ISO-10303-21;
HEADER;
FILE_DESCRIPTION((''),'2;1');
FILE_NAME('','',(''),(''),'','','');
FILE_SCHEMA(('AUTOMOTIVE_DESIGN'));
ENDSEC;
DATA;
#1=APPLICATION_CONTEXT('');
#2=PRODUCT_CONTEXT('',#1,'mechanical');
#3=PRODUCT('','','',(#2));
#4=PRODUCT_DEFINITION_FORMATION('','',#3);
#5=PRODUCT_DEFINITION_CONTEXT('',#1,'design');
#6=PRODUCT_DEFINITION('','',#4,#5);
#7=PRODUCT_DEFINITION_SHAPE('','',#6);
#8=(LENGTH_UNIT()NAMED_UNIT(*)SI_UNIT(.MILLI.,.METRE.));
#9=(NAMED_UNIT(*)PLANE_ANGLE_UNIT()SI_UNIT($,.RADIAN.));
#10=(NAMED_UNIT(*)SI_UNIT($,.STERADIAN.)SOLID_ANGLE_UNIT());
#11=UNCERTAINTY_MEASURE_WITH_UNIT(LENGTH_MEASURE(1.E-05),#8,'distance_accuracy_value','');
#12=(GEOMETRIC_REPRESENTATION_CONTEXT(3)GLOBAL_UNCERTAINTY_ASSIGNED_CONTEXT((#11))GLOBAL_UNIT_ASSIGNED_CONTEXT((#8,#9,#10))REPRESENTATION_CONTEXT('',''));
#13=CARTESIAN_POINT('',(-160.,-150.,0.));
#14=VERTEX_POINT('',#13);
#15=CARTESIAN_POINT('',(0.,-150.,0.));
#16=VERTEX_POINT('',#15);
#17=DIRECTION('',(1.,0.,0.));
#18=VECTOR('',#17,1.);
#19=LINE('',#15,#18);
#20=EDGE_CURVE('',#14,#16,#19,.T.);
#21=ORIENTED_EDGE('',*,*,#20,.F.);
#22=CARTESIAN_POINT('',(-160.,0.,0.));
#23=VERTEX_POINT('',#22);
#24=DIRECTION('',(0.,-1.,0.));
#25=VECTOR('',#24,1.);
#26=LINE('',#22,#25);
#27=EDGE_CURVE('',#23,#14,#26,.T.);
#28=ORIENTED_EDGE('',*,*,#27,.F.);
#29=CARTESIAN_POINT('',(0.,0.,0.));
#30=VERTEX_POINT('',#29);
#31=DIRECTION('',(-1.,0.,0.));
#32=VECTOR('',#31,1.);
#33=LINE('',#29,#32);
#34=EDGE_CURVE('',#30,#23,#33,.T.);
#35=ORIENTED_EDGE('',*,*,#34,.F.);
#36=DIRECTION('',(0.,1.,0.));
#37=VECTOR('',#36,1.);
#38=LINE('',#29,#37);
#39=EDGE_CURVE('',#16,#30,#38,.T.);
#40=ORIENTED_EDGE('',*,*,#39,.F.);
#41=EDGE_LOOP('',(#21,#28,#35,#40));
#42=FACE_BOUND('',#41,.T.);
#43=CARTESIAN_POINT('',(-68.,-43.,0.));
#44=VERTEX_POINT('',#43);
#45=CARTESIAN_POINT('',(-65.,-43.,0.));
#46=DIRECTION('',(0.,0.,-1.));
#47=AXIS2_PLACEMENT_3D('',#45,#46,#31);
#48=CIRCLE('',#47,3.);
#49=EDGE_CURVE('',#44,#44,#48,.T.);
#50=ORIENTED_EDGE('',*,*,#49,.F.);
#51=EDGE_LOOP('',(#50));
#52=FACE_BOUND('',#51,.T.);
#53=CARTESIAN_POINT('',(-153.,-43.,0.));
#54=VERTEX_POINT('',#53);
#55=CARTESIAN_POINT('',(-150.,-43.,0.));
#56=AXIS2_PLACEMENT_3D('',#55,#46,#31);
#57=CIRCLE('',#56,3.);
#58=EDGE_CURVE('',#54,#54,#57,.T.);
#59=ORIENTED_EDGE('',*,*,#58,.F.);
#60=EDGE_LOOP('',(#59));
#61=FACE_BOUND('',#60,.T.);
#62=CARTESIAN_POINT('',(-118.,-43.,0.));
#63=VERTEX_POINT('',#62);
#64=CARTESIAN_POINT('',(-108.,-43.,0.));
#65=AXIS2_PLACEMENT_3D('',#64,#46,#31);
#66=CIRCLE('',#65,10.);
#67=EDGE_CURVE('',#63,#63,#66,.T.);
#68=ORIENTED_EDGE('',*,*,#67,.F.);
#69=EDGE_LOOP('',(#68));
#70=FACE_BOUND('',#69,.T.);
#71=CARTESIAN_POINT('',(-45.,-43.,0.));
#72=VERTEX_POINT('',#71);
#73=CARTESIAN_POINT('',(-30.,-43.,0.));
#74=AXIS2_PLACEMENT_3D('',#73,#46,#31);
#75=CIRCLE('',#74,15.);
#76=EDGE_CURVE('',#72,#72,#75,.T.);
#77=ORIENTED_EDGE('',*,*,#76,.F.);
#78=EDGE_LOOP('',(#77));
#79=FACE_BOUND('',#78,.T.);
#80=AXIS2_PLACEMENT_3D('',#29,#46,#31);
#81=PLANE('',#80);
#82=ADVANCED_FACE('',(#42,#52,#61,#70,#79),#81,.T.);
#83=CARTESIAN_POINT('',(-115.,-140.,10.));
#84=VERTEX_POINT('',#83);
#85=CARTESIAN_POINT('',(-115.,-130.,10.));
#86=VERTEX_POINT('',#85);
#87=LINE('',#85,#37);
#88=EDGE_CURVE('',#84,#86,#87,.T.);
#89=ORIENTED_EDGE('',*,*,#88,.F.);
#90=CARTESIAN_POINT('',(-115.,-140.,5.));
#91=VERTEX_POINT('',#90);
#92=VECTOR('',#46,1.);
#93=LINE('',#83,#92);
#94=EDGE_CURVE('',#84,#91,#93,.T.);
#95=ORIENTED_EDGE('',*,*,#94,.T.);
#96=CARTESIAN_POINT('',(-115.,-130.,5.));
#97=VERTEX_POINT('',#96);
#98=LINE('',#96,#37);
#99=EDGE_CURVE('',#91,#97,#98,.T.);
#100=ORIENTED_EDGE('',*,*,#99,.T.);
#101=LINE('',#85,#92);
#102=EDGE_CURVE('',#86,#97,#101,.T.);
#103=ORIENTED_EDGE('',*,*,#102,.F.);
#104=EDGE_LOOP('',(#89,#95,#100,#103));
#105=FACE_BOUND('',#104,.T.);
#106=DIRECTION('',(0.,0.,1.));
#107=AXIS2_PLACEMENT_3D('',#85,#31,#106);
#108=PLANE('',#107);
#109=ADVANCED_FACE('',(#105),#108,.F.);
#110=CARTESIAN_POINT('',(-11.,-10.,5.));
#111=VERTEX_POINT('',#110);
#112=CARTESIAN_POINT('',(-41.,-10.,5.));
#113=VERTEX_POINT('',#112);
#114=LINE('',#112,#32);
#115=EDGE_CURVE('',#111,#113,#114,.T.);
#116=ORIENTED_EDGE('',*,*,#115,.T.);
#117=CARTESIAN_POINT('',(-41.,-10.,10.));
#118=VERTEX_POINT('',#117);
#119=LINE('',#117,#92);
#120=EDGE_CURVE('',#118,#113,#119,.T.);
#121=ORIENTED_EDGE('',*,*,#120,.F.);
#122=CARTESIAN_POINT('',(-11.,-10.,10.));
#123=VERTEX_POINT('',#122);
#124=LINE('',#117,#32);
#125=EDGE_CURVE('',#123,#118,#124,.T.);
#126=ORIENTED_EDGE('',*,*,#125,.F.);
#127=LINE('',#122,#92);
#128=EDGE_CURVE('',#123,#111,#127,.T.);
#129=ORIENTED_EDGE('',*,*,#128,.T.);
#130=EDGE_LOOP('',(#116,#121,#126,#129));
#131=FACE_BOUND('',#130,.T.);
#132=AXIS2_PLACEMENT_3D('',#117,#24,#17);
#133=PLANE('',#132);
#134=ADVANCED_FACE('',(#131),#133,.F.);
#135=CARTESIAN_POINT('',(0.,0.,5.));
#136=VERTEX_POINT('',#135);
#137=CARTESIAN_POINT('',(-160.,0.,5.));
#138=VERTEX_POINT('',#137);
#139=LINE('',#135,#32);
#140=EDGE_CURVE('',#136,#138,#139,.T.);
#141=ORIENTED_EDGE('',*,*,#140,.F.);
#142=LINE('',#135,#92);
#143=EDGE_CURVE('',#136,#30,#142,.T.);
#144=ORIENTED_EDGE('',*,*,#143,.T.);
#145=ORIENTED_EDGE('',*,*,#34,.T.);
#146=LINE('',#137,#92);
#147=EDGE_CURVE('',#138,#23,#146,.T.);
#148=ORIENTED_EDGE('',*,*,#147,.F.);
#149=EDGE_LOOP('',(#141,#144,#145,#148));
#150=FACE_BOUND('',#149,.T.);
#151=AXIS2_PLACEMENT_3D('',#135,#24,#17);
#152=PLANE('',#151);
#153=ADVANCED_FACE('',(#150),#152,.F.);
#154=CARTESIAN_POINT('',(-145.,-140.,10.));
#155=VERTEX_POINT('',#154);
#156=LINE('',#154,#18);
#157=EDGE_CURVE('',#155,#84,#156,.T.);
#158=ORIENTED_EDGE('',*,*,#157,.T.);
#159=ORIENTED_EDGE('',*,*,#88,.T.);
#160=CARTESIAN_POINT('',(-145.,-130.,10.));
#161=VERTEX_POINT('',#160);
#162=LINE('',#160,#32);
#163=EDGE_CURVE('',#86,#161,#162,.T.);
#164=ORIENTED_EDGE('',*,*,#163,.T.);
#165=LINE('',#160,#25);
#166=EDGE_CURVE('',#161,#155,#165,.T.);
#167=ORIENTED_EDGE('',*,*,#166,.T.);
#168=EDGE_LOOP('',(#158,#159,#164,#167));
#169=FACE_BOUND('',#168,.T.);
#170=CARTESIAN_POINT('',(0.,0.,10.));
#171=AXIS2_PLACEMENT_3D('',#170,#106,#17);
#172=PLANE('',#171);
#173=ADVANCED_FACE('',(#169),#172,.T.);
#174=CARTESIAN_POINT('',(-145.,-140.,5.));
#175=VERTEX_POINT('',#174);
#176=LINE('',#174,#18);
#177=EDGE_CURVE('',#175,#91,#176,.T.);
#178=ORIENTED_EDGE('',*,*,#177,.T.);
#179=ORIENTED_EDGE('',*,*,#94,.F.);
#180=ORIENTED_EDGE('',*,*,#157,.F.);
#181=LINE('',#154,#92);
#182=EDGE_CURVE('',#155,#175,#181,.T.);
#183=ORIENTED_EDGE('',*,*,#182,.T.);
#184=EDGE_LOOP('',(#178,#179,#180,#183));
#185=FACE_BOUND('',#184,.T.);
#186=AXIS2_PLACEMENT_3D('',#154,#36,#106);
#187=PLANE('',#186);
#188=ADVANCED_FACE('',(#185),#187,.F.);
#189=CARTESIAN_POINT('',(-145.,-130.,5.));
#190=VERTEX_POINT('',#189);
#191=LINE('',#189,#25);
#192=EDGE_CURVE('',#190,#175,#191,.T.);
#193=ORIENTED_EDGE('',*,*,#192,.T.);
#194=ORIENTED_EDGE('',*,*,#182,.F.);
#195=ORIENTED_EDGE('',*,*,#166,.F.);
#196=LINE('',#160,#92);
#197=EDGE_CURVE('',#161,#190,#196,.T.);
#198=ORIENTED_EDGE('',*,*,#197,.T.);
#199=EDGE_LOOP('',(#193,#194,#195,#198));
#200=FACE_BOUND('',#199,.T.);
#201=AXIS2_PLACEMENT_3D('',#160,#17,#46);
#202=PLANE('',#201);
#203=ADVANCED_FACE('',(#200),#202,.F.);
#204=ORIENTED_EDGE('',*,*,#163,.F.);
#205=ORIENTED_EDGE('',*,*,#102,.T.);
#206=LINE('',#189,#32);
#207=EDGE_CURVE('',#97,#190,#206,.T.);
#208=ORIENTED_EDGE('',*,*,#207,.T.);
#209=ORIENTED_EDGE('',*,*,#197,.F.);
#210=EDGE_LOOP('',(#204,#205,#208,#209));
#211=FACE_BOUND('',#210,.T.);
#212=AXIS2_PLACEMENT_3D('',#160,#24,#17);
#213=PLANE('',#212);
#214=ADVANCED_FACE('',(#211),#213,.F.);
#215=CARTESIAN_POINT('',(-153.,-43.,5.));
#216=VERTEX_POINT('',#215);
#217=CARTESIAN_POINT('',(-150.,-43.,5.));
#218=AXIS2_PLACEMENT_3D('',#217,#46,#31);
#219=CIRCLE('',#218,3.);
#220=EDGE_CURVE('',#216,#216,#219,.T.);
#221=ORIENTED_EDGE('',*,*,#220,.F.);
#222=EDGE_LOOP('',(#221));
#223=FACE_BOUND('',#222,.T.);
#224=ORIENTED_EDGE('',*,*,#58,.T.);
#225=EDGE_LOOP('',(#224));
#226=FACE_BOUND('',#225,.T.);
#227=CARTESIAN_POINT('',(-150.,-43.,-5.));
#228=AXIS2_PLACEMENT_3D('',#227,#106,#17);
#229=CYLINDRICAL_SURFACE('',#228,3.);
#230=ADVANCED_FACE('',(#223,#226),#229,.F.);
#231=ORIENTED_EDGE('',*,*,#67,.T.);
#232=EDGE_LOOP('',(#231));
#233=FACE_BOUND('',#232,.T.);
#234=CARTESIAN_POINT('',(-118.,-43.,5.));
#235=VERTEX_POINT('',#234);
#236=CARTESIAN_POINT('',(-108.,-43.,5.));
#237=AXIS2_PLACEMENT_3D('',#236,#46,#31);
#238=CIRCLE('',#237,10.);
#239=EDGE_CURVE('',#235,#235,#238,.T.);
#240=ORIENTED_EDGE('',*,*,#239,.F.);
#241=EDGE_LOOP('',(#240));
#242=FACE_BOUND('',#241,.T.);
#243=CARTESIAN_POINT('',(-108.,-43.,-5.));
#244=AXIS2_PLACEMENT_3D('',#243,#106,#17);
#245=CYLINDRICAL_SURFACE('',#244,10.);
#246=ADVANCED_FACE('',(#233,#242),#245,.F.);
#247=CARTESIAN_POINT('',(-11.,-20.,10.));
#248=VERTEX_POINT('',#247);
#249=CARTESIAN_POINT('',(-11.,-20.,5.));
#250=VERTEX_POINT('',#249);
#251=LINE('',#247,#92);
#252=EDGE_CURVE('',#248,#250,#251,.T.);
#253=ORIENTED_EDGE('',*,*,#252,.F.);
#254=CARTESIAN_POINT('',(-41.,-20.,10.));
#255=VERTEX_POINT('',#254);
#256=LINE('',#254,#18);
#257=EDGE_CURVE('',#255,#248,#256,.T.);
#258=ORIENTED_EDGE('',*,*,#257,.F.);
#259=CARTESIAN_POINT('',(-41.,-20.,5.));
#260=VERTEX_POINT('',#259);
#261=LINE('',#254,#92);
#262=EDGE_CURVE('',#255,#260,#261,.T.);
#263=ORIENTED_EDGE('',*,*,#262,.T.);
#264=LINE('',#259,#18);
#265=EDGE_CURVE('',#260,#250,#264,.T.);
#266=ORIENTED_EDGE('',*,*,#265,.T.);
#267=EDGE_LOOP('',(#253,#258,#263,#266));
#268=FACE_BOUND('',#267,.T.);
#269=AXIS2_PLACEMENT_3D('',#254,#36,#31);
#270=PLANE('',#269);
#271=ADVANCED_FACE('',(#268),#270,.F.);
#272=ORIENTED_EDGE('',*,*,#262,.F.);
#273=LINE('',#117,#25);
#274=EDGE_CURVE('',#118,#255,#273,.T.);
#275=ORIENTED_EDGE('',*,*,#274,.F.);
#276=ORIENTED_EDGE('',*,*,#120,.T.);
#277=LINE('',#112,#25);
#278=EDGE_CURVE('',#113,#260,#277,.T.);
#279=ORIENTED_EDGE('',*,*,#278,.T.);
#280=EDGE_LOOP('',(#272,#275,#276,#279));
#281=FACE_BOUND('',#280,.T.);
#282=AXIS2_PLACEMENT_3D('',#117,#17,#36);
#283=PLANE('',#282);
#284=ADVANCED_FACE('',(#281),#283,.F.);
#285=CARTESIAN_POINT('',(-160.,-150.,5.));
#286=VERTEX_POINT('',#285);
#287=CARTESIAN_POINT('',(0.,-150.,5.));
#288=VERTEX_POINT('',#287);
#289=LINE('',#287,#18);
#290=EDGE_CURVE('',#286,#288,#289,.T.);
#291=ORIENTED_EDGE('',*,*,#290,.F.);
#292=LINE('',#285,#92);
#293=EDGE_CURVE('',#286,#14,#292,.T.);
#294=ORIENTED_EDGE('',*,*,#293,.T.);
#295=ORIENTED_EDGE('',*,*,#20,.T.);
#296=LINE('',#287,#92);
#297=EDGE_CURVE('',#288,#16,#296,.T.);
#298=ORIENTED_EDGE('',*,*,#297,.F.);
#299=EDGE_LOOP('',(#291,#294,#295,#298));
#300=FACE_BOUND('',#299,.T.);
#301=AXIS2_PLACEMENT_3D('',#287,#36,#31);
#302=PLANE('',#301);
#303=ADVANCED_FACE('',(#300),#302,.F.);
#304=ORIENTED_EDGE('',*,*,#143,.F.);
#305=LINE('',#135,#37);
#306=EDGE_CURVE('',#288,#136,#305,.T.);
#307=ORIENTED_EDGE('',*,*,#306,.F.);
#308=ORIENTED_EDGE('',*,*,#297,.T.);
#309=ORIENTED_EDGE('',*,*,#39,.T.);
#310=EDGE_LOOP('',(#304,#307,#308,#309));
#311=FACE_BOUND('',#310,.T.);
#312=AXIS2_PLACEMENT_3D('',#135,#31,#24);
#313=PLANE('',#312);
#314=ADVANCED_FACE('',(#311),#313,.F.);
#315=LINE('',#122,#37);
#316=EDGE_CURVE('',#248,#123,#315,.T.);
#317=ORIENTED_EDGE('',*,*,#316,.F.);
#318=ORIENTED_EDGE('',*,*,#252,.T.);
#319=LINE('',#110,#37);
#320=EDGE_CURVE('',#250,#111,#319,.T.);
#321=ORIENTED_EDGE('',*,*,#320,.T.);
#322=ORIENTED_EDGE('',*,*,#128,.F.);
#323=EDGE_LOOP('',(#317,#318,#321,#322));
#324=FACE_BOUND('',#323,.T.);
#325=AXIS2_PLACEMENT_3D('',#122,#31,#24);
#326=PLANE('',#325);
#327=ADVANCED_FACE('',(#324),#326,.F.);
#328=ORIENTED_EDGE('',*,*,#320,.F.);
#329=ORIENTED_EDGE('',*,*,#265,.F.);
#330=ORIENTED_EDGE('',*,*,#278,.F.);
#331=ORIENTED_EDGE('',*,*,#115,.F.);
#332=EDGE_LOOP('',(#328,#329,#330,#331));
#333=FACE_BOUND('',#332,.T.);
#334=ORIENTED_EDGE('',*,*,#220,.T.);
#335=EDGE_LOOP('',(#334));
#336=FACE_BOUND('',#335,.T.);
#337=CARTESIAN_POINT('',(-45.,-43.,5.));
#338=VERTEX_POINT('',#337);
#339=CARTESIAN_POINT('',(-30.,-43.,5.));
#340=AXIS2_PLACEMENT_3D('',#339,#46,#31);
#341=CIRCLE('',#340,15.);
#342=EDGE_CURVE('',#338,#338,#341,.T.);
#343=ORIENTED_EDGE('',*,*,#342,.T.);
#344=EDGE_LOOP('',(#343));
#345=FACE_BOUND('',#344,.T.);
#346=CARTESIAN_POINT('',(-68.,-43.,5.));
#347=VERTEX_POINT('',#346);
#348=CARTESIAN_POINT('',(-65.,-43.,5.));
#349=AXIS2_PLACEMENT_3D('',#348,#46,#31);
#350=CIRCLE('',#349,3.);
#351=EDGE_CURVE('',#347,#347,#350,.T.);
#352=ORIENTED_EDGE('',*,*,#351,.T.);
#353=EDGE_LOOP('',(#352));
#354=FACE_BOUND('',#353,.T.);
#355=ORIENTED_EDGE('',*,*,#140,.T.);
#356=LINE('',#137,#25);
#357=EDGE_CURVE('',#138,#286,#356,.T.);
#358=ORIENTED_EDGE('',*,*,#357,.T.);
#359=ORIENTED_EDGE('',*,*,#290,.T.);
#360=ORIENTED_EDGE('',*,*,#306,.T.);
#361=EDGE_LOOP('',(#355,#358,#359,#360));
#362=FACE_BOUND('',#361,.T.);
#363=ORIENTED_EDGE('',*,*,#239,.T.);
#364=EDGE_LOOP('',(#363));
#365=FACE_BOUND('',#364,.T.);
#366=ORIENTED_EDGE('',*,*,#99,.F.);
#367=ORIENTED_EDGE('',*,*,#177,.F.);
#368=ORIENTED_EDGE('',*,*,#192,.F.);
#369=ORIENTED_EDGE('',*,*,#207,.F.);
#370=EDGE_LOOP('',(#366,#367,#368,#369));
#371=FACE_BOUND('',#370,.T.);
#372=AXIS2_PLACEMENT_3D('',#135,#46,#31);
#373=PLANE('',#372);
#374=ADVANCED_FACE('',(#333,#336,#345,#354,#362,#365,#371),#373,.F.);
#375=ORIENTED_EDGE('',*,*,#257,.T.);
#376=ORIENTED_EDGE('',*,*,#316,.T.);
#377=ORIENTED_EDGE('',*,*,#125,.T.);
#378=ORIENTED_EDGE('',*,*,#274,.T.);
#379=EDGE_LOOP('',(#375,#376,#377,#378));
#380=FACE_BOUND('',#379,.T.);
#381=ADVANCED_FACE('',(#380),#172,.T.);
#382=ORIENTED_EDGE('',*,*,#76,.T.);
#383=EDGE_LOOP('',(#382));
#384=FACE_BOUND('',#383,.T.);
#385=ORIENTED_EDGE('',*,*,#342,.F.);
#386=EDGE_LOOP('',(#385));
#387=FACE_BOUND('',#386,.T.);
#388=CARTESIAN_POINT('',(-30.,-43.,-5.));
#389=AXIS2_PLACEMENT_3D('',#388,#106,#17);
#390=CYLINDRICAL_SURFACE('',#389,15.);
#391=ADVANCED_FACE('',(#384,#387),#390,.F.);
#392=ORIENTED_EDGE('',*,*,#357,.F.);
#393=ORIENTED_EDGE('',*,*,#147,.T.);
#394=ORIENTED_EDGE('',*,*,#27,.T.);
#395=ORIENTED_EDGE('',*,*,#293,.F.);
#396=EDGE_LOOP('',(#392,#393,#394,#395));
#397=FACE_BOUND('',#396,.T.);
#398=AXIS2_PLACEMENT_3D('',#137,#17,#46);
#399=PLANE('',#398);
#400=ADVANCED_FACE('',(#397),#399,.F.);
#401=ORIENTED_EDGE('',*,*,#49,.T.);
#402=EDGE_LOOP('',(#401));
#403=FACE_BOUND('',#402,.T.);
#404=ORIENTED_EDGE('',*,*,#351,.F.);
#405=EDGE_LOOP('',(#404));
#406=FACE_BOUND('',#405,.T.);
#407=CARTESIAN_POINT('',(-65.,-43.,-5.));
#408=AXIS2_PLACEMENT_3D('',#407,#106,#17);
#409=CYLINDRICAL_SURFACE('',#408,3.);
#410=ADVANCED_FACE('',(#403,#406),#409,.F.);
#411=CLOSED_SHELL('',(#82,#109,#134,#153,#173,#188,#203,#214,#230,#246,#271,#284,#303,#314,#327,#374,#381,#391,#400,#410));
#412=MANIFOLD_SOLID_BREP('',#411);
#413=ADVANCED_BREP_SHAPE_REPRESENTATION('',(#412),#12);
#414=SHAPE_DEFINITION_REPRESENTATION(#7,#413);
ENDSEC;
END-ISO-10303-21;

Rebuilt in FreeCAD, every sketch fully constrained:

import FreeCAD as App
import Part
import Sketcher

V = App.Vector
Q = App.Units.Quantity

doc = App.newDocument("Part")
params = doc.addObject("Spreadsheet::Sheet", "Params")
for row, (alias, value) in enumerate([
    ("sketch1_width", "160 mm"),
    ("sketch1_height", "150 mm"),
    ("pad1_length", "5 mm"),
    ("sketch2_width", "30 mm"),
    ("sketch2_height", "10 mm"),
    ("pad2_length", "5 mm"),
    ("sketch3_diameter", "6 mm"),
    ("sketch3_diameter2", "20 mm"),
    ("sketch3_diameter3", "30 mm"),
    ("pocket1_length", "15 mm"),
], start=1):
    params.set(f"A{row}", alias)
    params.set(f"B{row}", "=" + value)
    params.setAlias(f"B{row}", alias)

body = doc.addObject("PartDesign::Body", "Body")

sketch1 = body.newObject("Sketcher::SketchObject", "Sketch")
sketch1.AttachmentSupport = (doc.getObject("XY_Plane"), [""])
sketch1.MapMode = "FlatFace"
sketch1.addGeometry(Part.LineSegment(V(-160, 0, 0), V(-160, -150, 0)), False)
sketch1.addGeometry(Part.LineSegment(V(-160, -150, 0), V(0, -150, 0)), False)
sketch1.addGeometry(Part.LineSegment(V(0, -150, 0), V(0, 0, 0)), False)
sketch1.addGeometry(Part.LineSegment(V(0, 0, 0), V(-160, 0, 0)), False)
sketch1.addConstraint(Sketcher.Constraint("Coincident", 0, 2, 1, 1))
sketch1.addConstraint(Sketcher.Constraint("Coincident", 1, 2, 2, 1))
sketch1.addConstraint(Sketcher.Constraint("Coincident", 2, 2, 3, 1))
sketch1.addConstraint(Sketcher.Constraint("Coincident", 3, 2, 0, 1))
sketch1.addConstraint(Sketcher.Constraint("Vertical", 0))
sketch1.addConstraint(Sketcher.Constraint("Horizontal", 1))
sketch1.addConstraint(Sketcher.Constraint("Vertical", 2))
sketch1.addConstraint(Sketcher.Constraint("Horizontal", 3))
sketch1.addConstraint(Sketcher.Constraint("Coincident", 2, 2, -1, 1))
sketch1.addConstraint(Sketcher.Constraint("DistanceX", 1, 1, 1, 2, Q("160 mm")))
sketch1.addConstraint(Sketcher.Constraint("DistanceY", 0, 2, 0, 1, Q("150 mm")))
sketch1.setExpression("Constraints[9]", "Params.sketch1_width")
sketch1.setExpression("Constraints[10]", "Params.sketch1_height")
pad1 = body.newObject("PartDesign::Pad", "Pad")
pad1.Profile = sketch1
pad1.setExpression("Length", "Params.pad1_length")

sketch2 = body.newObject("Sketcher::SketchObject", "Sketch001")
sketch2.AttachmentSupport = (doc.getObject("XY_Plane"), [""])
sketch2.MapMode = "FlatFace"
sketch2.AttachmentOffset = App.Placement(V(0, 0, 5), App.Rotation())
sketch2.addGeometry(Part.LineSegment(V(-41, -10, 0), V(-41, -20, 0)), False)
sketch2.addGeometry(Part.LineSegment(V(-41, -20, 0), V(-11, -20, 0)), False)
sketch2.addGeometry(Part.LineSegment(V(-11, -20, 0), V(-11, -10, 0)), False)
sketch2.addGeometry(Part.LineSegment(V(-11, -10, 0), V(-41, -10, 0)), False)
sketch2.addGeometry(Part.LineSegment(V(-145, -130, 0), V(-145, -140, 0)), False)
sketch2.addGeometry(Part.LineSegment(V(-145, -140, 0), V(-115, -140, 0)), False)
sketch2.addGeometry(Part.LineSegment(V(-115, -140, 0), V(-115, -130, 0)), False)
sketch2.addGeometry(Part.LineSegment(V(-115, -130, 0), V(-145, -130, 0)), False)
sketch2.addConstraint(Sketcher.Constraint("Coincident", 0, 2, 1, 1))
sketch2.addConstraint(Sketcher.Constraint("Coincident", 1, 2, 2, 1))
sketch2.addConstraint(Sketcher.Constraint("Coincident", 2, 2, 3, 1))
sketch2.addConstraint(Sketcher.Constraint("Coincident", 3, 2, 0, 1))
sketch2.addConstraint(Sketcher.Constraint("Coincident", 4, 2, 5, 1))
sketch2.addConstraint(Sketcher.Constraint("Coincident", 5, 2, 6, 1))
sketch2.addConstraint(Sketcher.Constraint("Coincident", 6, 2, 7, 1))
sketch2.addConstraint(Sketcher.Constraint("Coincident", 7, 2, 4, 1))
sketch2.addConstraint(Sketcher.Constraint("Vertical", 0))
sketch2.addConstraint(Sketcher.Constraint("Horizontal", 1))
sketch2.addConstraint(Sketcher.Constraint("Vertical", 2))
sketch2.addConstraint(Sketcher.Constraint("Horizontal", 3))
sketch2.addConstraint(Sketcher.Constraint("Vertical", 4))
sketch2.addConstraint(Sketcher.Constraint("Horizontal", 5))
sketch2.addConstraint(Sketcher.Constraint("Vertical", 6))
sketch2.addConstraint(Sketcher.Constraint("Horizontal", 7))
sketch2.addConstraint(Sketcher.Constraint("Equal", 3, 5))
sketch2.addConstraint(Sketcher.Constraint("Equal", 2, 4))
sketch2.addConstraint(Sketcher.Constraint("DistanceX", 1, 1, 1, 2, Q("30 mm")))
sketch2.addConstraint(Sketcher.Constraint("DistanceY", 0, 2, 0, 1, Q("10 mm")))
sketch2.addConstraint(Sketcher.Constraint("DistanceX", 0, 2, -1, 1, Q("41 mm")))
sketch2.addConstraint(Sketcher.Constraint("DistanceY", 0, 2, -1, 1, Q("20 mm")))
sketch2.addConstraint(Sketcher.Constraint("DistanceX", 4, 2, -1, 1, Q("145 mm")))
sketch2.addConstraint(Sketcher.Constraint("DistanceY", 4, 2, -1, 1, Q("140 mm")))
sketch2.setExpression("Constraints[18]", "Params.sketch2_width")
sketch2.setExpression("Constraints[19]", "Params.sketch2_height")
pad2 = body.newObject("PartDesign::Pad", "Pad001")
pad2.Profile = sketch2
pad2.setExpression("Length", "Params.pad2_length")

sketch3 = body.newObject("Sketcher::SketchObject", "Sketch002")
sketch3.AttachmentSupport = (doc.getObject("XY_Plane"), [""])
sketch3.MapMode = "FlatFace"
sketch3.AttachmentOffset = App.Placement(V(0, 0, 10), App.Rotation())
sketch3.addGeometry(Part.Circle(V(-150, -43, 0), V(0, 0, 1), 3), False)
sketch3.addGeometry(Part.Circle(V(-108, -43, 0), V(0, 0, 1), 10), False)
sketch3.addGeometry(Part.Circle(V(-65, -43, 0), V(0, 0, 1), 3), False)
sketch3.addGeometry(Part.Circle(V(-30, -43, 0), V(0, 0, 1), 15), False)
sketch3.addConstraint(Sketcher.Constraint("Equal", 0, 2))
sketch3.addConstraint(Sketcher.Constraint("Horizontal", 0, 3, 1, 3))
sketch3.addConstraint(Sketcher.Constraint("Horizontal", 1, 3, 2, 3))
sketch3.addConstraint(Sketcher.Constraint("Horizontal", 2, 3, 3, 3))
sketch3.addConstraint(Sketcher.Constraint("Diameter", 0, Q("6 mm")))
sketch3.addConstraint(Sketcher.Constraint("Diameter", 1, Q("20 mm")))
sketch3.addConstraint(Sketcher.Constraint("Diameter", 3, Q("30 mm")))
sketch3.addConstraint(Sketcher.Constraint("DistanceX", 0, 3, -1, 1, Q("150 mm")))
sketch3.addConstraint(Sketcher.Constraint("DistanceY", 0, 3, -1, 1, Q("43 mm")))
sketch3.addConstraint(Sketcher.Constraint("DistanceX", 1, 3, -1, 1, Q("108 mm")))
sketch3.addConstraint(Sketcher.Constraint("DistanceX", 2, 3, -1, 1, Q("65 mm")))
sketch3.addConstraint(Sketcher.Constraint("DistanceX", 3, 3, -1, 1, Q("30 mm")))
sketch3.setExpression("Constraints[4]", "Params.sketch3_diameter")
sketch3.setExpression("Constraints[5]", "Params.sketch3_diameter2")
sketch3.setExpression("Constraints[6]", "Params.sketch3_diameter3")
pocket1 = body.newObject("PartDesign::Pocket", "Pocket")
pocket1.Profile = sketch3
pocket1.setExpression("Length", "Params.pocket1_length")

doc.recompute()
